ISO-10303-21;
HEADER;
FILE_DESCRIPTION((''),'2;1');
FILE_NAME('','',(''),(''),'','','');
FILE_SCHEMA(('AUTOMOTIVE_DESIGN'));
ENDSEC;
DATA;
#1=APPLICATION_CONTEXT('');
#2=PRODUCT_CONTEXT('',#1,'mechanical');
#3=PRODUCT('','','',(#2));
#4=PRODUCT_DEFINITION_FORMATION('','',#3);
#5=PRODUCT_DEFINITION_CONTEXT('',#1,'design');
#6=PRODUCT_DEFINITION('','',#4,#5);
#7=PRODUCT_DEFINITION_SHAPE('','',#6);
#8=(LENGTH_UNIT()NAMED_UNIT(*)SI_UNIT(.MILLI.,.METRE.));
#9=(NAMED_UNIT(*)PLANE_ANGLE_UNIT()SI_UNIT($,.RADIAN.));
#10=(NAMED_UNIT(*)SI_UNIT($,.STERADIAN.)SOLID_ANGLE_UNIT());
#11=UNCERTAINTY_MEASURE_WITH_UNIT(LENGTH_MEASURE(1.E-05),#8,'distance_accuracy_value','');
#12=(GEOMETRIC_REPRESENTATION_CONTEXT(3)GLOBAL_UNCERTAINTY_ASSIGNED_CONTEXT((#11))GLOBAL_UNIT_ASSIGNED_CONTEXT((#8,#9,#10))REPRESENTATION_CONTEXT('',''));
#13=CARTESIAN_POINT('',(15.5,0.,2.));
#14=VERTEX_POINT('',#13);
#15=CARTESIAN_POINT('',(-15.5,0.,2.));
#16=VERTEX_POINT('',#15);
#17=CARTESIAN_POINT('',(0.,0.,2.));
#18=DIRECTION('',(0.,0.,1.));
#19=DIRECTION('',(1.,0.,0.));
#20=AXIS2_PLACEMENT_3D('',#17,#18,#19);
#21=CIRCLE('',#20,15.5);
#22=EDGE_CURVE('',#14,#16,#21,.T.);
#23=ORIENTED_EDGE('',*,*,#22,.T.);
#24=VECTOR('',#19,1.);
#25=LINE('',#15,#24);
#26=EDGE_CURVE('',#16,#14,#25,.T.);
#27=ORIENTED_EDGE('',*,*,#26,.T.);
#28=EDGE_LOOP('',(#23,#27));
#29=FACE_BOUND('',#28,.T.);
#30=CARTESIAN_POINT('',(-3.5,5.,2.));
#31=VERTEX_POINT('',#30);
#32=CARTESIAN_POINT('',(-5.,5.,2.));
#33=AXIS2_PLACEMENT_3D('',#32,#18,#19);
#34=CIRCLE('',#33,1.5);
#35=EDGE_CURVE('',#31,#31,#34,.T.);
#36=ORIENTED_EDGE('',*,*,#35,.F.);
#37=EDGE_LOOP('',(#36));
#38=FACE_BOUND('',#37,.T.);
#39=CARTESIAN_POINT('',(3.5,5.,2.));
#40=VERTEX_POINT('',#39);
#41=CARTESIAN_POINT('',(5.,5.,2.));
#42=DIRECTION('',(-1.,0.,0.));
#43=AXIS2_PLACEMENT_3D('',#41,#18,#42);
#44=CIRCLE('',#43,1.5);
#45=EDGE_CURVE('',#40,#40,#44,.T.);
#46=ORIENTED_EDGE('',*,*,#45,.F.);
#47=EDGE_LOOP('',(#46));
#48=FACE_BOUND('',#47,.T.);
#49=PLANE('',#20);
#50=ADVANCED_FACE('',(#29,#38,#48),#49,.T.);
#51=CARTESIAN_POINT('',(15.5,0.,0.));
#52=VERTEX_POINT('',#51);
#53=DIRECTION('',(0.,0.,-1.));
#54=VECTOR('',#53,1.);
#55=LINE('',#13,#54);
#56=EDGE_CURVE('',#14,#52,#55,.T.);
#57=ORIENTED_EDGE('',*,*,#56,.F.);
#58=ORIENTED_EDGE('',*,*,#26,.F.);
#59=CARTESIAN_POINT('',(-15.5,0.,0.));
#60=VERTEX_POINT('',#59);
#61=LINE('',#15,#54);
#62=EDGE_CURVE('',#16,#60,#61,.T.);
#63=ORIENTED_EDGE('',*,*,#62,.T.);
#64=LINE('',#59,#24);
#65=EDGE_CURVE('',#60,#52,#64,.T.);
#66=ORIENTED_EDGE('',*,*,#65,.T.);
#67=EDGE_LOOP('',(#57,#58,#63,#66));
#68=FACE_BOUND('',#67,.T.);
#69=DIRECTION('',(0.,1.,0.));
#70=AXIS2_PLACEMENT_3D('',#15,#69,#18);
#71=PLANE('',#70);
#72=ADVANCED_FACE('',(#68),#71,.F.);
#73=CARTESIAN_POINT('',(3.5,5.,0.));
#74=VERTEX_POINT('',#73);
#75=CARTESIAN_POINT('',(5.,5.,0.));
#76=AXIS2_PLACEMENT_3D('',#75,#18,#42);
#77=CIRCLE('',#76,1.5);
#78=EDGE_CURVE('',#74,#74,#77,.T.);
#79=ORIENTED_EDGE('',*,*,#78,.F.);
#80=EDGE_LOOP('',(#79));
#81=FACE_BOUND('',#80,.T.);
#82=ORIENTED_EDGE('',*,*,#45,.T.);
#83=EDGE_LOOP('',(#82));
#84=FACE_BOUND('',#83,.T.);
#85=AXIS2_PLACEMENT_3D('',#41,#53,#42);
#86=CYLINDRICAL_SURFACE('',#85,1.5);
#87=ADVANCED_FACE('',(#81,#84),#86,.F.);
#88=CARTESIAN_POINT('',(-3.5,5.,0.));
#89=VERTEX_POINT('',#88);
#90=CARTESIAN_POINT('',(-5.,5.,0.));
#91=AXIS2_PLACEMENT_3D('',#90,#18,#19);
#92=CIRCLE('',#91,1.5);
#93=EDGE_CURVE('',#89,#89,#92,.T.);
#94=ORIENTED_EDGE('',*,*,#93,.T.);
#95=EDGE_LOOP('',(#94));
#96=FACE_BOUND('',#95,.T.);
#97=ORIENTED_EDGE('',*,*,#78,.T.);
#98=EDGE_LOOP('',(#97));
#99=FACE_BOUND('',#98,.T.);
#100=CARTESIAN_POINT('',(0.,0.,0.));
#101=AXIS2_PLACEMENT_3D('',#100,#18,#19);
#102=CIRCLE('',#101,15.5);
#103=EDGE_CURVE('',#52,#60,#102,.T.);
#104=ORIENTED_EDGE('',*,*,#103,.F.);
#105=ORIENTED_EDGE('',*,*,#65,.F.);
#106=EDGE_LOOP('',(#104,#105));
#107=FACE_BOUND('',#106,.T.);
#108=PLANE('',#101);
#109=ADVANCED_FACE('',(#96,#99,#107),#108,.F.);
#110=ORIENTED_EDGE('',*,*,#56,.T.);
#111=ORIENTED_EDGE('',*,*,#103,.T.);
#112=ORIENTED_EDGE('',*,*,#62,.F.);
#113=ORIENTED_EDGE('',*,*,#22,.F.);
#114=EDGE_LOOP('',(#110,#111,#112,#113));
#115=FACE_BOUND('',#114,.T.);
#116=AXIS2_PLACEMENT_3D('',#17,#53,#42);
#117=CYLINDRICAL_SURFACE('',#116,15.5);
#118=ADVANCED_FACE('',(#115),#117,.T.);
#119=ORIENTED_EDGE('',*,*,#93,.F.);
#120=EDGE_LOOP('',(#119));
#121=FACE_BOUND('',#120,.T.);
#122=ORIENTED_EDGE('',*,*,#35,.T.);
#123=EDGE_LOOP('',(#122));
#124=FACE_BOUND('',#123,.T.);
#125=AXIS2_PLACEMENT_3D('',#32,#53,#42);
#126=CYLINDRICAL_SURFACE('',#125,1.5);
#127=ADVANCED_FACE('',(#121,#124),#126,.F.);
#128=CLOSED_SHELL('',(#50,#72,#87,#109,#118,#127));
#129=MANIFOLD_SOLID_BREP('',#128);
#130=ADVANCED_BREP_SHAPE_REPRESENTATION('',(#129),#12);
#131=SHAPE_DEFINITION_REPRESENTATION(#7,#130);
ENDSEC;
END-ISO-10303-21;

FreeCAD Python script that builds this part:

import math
import FreeCAD as App
import Part
import Sketcher
from FreeCAD import Vector
Q = App.Units.Quantity

doc = App.newDocument("Part")
params = doc.addObject("Spreadsheet::Sheet", "Params")
for row, (alias, value) in enumerate([
    ("sketch1_diameter", "3 mm"),
    ("sketch1_radius", "15.5 mm"),
    ("pad1_length", "2 mm"),
], start=1):
    params.set(f"A{row}", alias)
    params.set(f"B{row}", "=" + value)
    params.setAlias(f"B{row}", alias)

body = doc.addObject("PartDesign::Body", "Body")

sketch1 = body.newObject("Sketcher::SketchObject", "Sketch")
sketch1.AttachmentSupport = (doc.getObject("XY_Plane"), [""])
sketch1.MapMode = "FlatFace"
sketch1.addGeometry([
    Part.LineSegment(Vector(-15.5, 0, 0), Vector(15.5, 0, 0)),
    Part.ArcOfCircle(Part.Circle(Vector(0, 0, 0), Vector(0, 0, 1), 15.5), math.radians(0), math.radians(180)),
    Part.Circle(Vector(-5, 5, 0), Vector(0, 0, 1), 1.5),
    Part.Circle(Vector(5, 5, 0), Vector(0, 0, 1), 1.5),
], False)
sketch1.addConstraint([
    Sketcher.Constraint("Coincident", 0, 1, 1, 2),
    Sketcher.Constraint("Coincident", 1, 1, 0, 2),
    Sketcher.Constraint("Horizontal", 0),
    Sketcher.Constraint("Coincident", 1, 3, -1, 1),
    Sketcher.Constraint("Equal", 2, 3),
    Sketcher.Constraint("Symmetric", 2, 3, 3, 3, -2),
    Sketcher.Constraint("PointOnObject", 0, 1, -1),
    Sketcher.Constraint("Diameter", 2, Q("3 mm")),
    Sketcher.Constraint("Radius", 1, Q("15.5 mm")),
    Sketcher.Constraint("DistanceX", 2, 3, -1, 1, Q("5 mm")),
    Sketcher.Constraint("DistanceY", -1, 1, 2, 3, Q("5 mm")),
])
sketch1.setExpression("Constraints[7]", "Params.sketch1_diameter")
sketch1.setExpression("Constraints[8]", "Params.sketch1_radius")
pad1 = body.newObject("PartDesign::Pad", "Pad")
pad1.Profile = sketch1
pad1.setExpression("Length", "Params.pad1_length")

doc.recompute()
